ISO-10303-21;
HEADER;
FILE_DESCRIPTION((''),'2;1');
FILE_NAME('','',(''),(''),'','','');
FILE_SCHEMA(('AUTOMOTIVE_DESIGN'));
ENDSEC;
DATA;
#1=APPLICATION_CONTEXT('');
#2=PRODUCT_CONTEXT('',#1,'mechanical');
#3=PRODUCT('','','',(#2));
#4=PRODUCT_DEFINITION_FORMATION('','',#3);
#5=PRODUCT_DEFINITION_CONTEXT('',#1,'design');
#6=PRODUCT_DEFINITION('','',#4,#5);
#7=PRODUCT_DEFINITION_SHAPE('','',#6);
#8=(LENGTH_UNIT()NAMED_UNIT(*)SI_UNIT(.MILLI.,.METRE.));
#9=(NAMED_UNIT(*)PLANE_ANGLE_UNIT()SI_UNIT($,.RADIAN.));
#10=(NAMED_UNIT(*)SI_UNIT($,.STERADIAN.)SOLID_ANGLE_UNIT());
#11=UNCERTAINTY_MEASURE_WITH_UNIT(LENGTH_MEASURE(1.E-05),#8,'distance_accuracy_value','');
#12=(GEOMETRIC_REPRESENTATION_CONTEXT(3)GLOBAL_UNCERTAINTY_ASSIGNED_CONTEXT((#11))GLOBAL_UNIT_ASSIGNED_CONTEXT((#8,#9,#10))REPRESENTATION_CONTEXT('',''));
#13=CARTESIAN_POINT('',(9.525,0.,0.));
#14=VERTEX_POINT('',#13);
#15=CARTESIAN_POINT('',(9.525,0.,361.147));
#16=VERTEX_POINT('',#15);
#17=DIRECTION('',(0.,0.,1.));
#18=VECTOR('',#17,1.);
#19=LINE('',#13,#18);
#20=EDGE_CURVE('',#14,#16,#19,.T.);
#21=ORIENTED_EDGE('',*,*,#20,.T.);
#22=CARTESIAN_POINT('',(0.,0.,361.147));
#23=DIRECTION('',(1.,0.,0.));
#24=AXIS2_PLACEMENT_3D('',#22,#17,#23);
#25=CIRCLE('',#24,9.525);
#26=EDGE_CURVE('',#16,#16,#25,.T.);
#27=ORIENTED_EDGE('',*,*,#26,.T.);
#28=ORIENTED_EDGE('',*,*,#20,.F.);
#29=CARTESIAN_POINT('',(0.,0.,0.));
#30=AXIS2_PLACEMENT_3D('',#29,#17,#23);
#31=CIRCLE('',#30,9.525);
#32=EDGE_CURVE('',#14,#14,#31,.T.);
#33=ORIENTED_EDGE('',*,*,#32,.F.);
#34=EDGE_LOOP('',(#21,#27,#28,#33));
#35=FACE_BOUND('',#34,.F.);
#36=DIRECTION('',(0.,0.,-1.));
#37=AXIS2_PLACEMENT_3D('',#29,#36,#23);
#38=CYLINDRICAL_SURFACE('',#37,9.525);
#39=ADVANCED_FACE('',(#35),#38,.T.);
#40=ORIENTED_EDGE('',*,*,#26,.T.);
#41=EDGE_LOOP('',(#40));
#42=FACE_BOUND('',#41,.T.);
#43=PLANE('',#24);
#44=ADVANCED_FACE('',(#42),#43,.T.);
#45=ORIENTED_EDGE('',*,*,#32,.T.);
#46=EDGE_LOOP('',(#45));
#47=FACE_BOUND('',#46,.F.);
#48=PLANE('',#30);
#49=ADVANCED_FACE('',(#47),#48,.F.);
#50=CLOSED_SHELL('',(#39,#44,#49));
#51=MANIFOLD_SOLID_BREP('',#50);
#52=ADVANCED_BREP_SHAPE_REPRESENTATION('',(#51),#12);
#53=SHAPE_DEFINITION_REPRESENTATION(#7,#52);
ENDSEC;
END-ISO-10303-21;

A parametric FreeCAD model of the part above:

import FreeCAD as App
import Part
import Sketcher
Q = App.Units.Quantity

doc = App.newDocument("Part")
body = doc.addObject("PartDesign::Body", "Body")

# Sketch on XY plane
sketch1 = body.newObject("Sketcher::SketchObject", "Sketch")
sketch1.AttachmentSupport = (doc.getObject("XY_Plane"), [""])
sketch1.MapMode = "FlatFace"
sketch1.addGeometry(Part.Circle(App.Vector(0, 0, 0), App.Vector(0, 0, 1), 9.525), False)
sketch1.addConstraint(Sketcher.Constraint("Coincident", 0, 3, -1, 1))
sketch1.addConstraint(Sketcher.Constraint("Diameter", 0, Q("0.75 in")))
pad1 = body.newObject("PartDesign::Pad", "Pad")
pad1.Profile = sketch1
pad1.Length = 361.147

doc.recompute()
